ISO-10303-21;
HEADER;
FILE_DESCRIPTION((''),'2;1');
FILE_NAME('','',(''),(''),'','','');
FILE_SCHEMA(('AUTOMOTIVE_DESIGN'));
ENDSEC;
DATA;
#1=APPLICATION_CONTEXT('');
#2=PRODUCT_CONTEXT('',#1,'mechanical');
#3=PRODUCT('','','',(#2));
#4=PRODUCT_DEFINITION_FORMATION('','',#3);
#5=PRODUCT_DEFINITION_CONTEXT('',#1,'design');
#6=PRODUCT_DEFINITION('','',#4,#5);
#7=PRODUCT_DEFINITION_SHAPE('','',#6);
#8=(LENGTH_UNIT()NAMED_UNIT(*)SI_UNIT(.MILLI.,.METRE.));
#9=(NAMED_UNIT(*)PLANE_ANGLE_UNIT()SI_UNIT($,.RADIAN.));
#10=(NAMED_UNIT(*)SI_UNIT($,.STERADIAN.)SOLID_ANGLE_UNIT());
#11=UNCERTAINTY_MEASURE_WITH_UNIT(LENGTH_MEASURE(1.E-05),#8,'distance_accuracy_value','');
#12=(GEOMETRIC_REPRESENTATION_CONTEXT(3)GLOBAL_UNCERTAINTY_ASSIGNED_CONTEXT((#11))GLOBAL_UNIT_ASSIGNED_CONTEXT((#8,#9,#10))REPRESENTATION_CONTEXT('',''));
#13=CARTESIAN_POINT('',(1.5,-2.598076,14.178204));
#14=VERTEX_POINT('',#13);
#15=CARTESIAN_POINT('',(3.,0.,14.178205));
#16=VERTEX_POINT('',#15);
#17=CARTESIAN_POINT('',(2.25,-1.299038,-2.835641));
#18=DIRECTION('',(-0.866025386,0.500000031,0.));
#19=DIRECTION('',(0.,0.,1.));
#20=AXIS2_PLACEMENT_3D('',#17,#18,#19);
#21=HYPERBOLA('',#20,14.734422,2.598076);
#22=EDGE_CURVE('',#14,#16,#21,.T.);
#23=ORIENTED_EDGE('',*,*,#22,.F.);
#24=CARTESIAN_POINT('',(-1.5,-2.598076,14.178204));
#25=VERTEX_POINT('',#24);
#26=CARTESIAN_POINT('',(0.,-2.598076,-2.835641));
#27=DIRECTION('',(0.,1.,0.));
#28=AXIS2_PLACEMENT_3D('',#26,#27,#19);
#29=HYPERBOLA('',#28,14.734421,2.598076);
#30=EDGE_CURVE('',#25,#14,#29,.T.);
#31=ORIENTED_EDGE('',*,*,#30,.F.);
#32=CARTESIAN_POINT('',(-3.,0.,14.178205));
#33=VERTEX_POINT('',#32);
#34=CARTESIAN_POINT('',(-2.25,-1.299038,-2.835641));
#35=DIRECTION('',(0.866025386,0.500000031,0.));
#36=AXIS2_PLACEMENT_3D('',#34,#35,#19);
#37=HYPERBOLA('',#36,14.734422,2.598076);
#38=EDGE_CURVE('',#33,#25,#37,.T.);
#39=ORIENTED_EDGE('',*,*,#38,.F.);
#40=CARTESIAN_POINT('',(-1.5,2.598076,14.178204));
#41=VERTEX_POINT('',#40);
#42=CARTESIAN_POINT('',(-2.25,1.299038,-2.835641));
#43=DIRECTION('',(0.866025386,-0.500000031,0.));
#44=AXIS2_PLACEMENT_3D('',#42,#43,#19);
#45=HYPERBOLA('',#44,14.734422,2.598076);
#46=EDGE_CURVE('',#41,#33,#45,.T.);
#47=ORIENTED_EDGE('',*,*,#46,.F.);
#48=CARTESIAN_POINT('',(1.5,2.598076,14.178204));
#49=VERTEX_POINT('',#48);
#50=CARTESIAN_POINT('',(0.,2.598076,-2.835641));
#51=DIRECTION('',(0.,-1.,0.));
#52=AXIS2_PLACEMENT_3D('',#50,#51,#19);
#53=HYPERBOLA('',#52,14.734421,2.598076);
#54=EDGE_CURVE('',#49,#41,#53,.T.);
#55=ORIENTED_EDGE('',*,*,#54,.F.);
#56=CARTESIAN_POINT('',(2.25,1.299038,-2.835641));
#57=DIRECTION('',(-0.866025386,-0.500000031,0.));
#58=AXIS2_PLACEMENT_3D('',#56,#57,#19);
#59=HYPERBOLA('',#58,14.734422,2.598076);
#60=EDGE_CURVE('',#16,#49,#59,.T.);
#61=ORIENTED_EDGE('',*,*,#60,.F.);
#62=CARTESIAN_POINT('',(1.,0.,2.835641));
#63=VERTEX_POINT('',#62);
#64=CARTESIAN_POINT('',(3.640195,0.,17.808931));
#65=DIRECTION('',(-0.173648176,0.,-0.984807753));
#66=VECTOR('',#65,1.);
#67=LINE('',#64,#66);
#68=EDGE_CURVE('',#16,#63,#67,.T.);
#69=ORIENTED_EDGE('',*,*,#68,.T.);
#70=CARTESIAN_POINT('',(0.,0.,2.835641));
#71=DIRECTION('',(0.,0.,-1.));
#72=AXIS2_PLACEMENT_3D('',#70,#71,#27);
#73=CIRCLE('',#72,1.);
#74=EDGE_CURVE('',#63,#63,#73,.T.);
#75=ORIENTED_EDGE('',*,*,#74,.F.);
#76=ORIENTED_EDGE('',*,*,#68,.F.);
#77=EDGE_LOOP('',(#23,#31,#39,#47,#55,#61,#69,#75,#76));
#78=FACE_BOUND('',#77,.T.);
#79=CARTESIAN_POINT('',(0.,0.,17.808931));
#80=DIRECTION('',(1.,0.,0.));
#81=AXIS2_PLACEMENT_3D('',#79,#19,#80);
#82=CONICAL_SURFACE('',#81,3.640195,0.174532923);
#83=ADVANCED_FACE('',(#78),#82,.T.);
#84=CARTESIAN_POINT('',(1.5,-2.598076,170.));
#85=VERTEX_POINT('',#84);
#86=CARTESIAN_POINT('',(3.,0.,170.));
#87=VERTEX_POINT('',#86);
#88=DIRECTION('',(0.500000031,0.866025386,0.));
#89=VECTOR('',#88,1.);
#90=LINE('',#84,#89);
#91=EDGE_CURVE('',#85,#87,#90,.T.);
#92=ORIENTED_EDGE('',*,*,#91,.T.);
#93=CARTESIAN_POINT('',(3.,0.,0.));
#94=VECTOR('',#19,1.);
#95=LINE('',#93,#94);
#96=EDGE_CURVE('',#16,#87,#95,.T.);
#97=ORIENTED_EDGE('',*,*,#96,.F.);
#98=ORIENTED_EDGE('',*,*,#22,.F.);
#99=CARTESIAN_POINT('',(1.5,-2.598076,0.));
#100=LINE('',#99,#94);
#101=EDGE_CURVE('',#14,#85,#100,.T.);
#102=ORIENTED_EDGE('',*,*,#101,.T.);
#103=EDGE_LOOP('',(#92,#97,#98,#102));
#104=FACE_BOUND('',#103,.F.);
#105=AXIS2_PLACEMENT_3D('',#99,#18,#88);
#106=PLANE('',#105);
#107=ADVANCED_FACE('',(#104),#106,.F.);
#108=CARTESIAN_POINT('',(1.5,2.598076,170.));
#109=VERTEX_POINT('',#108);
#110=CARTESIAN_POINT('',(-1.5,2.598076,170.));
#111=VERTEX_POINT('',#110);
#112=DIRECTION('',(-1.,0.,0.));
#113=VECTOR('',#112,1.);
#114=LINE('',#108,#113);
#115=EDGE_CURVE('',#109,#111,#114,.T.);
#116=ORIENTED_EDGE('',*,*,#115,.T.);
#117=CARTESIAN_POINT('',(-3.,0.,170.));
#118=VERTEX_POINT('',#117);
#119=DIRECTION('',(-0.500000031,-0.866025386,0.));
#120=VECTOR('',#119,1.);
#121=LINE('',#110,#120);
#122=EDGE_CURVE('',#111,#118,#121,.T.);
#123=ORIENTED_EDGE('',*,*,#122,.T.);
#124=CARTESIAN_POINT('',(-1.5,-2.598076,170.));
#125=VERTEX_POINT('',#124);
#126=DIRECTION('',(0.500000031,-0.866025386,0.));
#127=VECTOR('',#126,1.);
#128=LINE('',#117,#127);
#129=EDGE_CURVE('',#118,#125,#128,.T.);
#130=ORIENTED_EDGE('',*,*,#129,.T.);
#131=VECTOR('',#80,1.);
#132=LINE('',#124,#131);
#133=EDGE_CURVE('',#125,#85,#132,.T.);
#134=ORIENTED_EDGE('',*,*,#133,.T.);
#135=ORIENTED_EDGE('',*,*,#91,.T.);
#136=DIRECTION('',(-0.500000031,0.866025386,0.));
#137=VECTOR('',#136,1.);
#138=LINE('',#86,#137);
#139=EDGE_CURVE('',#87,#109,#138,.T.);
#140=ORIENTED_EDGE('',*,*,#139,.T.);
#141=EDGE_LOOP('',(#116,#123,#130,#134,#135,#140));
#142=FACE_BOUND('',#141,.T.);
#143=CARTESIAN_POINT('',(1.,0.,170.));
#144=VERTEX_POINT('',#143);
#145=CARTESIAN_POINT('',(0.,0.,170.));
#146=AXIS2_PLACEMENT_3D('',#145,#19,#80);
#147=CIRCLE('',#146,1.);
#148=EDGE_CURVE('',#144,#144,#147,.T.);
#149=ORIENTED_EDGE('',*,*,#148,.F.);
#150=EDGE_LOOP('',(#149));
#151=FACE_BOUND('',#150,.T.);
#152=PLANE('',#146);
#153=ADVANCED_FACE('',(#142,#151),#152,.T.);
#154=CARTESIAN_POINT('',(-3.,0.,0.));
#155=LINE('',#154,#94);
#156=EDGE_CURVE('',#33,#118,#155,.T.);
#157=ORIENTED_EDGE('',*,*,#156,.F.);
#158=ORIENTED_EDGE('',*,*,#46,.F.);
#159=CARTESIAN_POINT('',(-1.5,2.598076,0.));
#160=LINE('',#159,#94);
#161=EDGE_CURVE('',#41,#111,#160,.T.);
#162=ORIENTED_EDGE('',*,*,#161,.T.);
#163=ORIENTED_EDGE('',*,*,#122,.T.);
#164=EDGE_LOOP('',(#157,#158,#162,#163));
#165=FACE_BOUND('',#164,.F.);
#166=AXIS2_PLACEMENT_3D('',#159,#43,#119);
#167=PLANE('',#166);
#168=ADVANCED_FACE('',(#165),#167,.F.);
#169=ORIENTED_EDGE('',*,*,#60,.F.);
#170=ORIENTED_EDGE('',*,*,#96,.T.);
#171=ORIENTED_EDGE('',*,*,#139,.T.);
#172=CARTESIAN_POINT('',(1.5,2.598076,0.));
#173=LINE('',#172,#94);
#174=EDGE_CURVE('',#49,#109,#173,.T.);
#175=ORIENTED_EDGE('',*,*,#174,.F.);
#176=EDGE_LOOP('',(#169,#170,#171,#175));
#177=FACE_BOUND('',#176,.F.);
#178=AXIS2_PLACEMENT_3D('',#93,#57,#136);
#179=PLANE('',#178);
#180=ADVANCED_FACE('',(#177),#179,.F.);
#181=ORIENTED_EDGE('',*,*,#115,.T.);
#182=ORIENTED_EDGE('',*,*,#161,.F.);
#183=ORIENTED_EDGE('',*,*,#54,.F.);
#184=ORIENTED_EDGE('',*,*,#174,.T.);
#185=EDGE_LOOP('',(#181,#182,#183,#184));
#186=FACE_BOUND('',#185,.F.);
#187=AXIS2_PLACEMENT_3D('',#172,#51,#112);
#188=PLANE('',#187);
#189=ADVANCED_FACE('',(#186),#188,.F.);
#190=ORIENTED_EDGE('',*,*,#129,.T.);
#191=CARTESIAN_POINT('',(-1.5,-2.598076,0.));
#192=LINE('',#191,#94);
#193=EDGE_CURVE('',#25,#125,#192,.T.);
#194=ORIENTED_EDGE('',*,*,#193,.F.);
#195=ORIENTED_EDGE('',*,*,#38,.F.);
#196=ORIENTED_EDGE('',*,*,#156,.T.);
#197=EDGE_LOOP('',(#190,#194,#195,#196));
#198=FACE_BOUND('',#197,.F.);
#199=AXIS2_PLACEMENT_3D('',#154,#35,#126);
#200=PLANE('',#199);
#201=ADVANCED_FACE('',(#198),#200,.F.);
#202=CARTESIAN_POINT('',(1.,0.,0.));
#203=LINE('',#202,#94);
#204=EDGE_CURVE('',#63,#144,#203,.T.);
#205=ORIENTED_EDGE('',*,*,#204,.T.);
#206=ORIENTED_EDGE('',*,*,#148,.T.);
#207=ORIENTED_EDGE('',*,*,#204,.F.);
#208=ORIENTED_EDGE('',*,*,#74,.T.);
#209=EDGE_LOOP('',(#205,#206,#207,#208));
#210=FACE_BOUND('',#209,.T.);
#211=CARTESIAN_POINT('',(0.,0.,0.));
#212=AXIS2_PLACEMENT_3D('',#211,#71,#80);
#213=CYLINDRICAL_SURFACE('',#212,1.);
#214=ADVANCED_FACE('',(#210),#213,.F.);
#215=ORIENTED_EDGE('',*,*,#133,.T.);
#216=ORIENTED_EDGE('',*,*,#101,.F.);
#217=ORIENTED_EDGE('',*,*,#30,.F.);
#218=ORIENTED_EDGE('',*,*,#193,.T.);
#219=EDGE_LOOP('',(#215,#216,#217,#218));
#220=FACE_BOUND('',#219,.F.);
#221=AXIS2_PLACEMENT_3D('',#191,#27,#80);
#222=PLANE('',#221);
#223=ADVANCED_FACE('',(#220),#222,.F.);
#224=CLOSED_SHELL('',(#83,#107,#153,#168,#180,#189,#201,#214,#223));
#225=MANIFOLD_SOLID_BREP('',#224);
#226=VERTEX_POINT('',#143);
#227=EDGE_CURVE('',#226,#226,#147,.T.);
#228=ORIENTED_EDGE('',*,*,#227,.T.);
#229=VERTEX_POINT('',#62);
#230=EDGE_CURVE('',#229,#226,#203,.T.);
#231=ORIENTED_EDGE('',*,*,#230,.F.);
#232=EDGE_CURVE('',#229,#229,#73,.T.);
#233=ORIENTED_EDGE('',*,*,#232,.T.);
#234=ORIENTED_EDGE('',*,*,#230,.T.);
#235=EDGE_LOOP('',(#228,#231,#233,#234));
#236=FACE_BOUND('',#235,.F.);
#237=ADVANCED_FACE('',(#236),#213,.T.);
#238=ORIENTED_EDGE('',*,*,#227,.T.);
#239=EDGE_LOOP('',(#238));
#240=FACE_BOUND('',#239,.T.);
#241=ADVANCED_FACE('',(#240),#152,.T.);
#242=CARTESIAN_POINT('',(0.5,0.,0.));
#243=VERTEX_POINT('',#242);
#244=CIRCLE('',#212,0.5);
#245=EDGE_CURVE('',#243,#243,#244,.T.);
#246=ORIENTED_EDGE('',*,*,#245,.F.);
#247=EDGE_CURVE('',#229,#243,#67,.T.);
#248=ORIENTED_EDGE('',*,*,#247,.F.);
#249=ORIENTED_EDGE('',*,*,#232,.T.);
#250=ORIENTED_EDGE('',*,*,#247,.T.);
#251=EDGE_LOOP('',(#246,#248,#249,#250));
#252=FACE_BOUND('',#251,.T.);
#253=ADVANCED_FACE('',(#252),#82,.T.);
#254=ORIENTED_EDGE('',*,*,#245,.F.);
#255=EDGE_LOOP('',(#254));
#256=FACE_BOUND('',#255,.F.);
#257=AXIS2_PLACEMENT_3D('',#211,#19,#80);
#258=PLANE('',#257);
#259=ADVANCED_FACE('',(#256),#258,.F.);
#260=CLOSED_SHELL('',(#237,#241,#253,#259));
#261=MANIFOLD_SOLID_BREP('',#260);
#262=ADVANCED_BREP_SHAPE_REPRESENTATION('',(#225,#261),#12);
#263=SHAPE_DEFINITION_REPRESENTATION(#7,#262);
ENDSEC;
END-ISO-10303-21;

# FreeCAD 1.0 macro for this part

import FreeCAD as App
import Part
import Sketcher

V = App.Vector
Q = App.Units.Quantity

doc = App.newDocument("Part")
body = doc.addObject("PartDesign::Body", "Body")

# Sketch on XY plane
sketch1 = body.newObject("Sketcher::SketchObject", "Sketch")
sketch1.AttachmentSupport = (doc.getObject("XY_Plane"), [""])
sketch1.MapMode = "FlatFace"
sketch1.addGeometry([
    Part.LineSegment(V(1.5, 2.6, 0), V(-1.5, 2.6, 0)),  # 0
    Part.LineSegment(V(-1.5, 2.6, 0), V(-3, 0, 0)),  # 1
    Part.LineSegment(V(-3, 0, 0), V(-1.5, -2.6, 0)),  # 2
    Part.LineSegment(V(-1.5, -2.6, 0), V(1.5, -2.6, 0)),  # 3
    Part.LineSegment(V(1.5, -2.6, 0), V(3, 0, 0)),  # 4
    Part.LineSegment(V(3, 0, 0), V(1.5, 2.6, 0)),  # 5
    Part.Circle(V(0, 0, 0), V(0, 0, 1), 1),  # 6
], False)
sketch1.addConstraint([
    Sketcher.Constraint("Coincident", 0, 2, 1, 1),
    Sketcher.Constraint("Coincident", 1, 2, 2, 1),
    Sketcher.Constraint("Coincident", 2, 2, 3, 1),
    Sketcher.Constraint("Coincident", 3, 2, 4, 1),
    Sketcher.Constraint("Coincident", 4, 2, 5, 1),
    Sketcher.Constraint("Coincident", 5, 2, 0, 1),
    Sketcher.Constraint("Horizontal", 0),
    Sketcher.Constraint("Horizontal", 3),
    Sketcher.Constraint("Coincident", 6, 3, -1, 1),
    Sketcher.Constraint("Symmetric", 0, 2, 3, 2, -1, 1),
    Sketcher.Constraint("Symmetric", 1, 2, 4, 2, -1, 1),
    Sketcher.Constraint("PointOnObject", 1, 2, -1),
    Sketcher.Constraint("Parallel", 2, 5),
    Sketcher.Constraint("Vertical", 0, 2, 2, 2),
    Sketcher.Constraint("Diameter", 6, Q("2 mm")),
    Sketcher.Constraint("DistanceX", 0, 2, 0, 1, Q("3 mm")),
    Sketcher.Constraint("Angle", 1, Q("-120.000002 deg")),
    Sketcher.Constraint("Distance", 1, Q("3 mm")),
])
pad1 = body.newObject("PartDesign::Pad", "Pad")
pad1.Profile = sketch1
pad1.Length = 170
body2 = doc.addObject("PartDesign::Body", "Body001")

# Sketch on XY plane
sketch2 = body2.newObject("Sketcher::SketchObject", "Sketch001")
sketch2.AttachmentSupport = (doc.getObject("XY_Plane001"), [""])
sketch2.MapMode = "FlatFace"
sketch2.addGeometry(Part.Circle(V(0, 0, 0), V(0, 0, 1), 1), False)
sketch2.addConstraint([
    Sketcher.Constraint("Coincident", 0, 3, -1, 1),
    Sketcher.Constraint("Diameter", 0, Q("2 mm")),
])
pad2 = body2.newObject("PartDesign::Pad", "Pad001")
pad2.Profile = sketch2
pad2.Length = 170
body3 = doc.addObject("PartDesign::Body", "Body002")

# Sketch on XZ plane
sketch3 = body3.newObject("Sketcher::SketchObject", "Sketch002")
sketch3.AttachmentSupport = (doc.getObject("XZ_Plane002"), [""])
sketch3.MapMode = "FlatFace"
sketch3.addGeometry([
    Part.LineSegment(V(3.6, 17.8, 0), V(0.5, 0, 0)),
    Part.LineSegment(V(0.5, 0, 0), V(3.6, 0, 0)),
    Part.LineSegment(V(3.6, 0, 0), V(3.6, 17.8, 0)),
], False)
sketch3.addConstraint([
    Sketcher.Constraint("Coincident", 0, 2, 1, 1),
    Sketcher.Constraint("Coincident", 1, 2, 2, 1),
    Sketcher.Constraint("Coincident", 2, 2, 0, 1),
    Sketcher.Constraint("Horizontal", 1),
    Sketcher.Constraint("Vertical", 2),
    Sketcher.Constraint("PointOnObject", 0, 2, -1),
    Sketcher.Constraint("Angle", 0, Q("-100 deg")),
    Sketcher.Constraint("DistanceX", -1, 1, 0, 2, Q("0.5 mm")),
    Sketcher.Constraint("DistanceY", 2, 1, 2, 2, Q("17.808931 mm")),
])
revolution = body3.newObject("PartDesign::Revolution", "Revolution")
revolution.Profile = sketch3
revolution.ReferenceAxis = (sketch3, ["V_Axis"])
revolution.Angle = 360
doc.recompute()

body4 = doc.addObject("PartDesign::Body", "Body003")
body4.BaseFeature = body3
boolean = body.newObject("PartDesign::Boolean", "Boolean")
boolean.Type = "Cut"
boolean.addObjects([body4])
doc.recompute()

boolean2 = body2.newObject("PartDesign::Boolean", "Boolean001")
boolean2.Type = "Cut"
boolean2.addObjects([body3])

doc.recompute()
